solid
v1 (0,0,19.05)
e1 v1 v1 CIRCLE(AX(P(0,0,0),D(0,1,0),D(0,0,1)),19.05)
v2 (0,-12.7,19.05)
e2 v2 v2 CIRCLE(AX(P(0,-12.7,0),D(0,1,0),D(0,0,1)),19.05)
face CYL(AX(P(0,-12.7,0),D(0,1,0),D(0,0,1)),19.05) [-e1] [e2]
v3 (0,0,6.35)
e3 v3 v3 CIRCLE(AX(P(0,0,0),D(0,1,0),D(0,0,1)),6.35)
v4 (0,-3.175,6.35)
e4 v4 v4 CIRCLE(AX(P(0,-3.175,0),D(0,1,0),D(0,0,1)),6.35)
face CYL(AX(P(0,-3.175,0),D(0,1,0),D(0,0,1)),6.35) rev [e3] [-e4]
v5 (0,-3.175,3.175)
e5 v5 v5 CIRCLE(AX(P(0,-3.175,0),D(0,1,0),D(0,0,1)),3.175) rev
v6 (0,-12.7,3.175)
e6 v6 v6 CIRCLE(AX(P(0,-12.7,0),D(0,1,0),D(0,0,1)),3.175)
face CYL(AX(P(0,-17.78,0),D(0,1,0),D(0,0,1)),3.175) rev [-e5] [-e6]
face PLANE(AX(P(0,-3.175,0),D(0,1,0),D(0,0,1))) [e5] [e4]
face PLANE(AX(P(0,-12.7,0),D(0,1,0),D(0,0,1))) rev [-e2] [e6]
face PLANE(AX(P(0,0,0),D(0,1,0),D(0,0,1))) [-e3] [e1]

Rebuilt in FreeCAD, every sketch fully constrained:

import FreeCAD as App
import Part
import Sketcher

V = App.Vector
Q = App.Units.Quantity

doc = App.newDocument("Part")
body = doc.addObject("PartDesign::Body", "Body")

sketch1 = body.newObject("Sketcher::SketchObject", "Sketch")
sketch1.AttachmentSupport = (doc.getObject("XZ_Plane"), [""])
sketch1.MapMode = "FlatFace"
sketch1.addGeometry(Part.Circle(V(0, 0, 0), V(0, 0, 1), 19), False)
sketch1.addConstraint(Sketcher.Constraint("Coincident", 0, 3, -1, 1))
sketch1.addConstraint(Sketcher.Constraint("Diameter", 0, Q("1.5 in")))
pad1 = body.newObject("PartDesign::Pad", "Pad")
pad1.Profile = sketch1
pad1.Length = Q("0.5 in")

sketch2 = body.newObject("Sketcher::SketchObject", "Sketch001")
sketch2.AttachmentSupport = (doc.getObject("XZ_Plane"), [""])
sketch2.MapMode = "FlatFace"
sketch2.addGeometry(Part.Circle(V(0, 0, 0), V(0, 0, 1), 3.2), False)
sketch2.addConstraint(Sketcher.Constraint("Coincident", 0, 3, -1, 1))
sketch2.addConstraint(Sketcher.Constraint("Diameter", 0, Q("0.25 in")))
pocket1 = body.newObject("PartDesign::Pocket", "Pocket")
pocket1.Profile = sketch2
pocket1.Length = Q("0.7 in")
pocket1.Reversed = True

sketch3 = body.newObject("Sketcher::SketchObject", "Sketch002")
sketch3.AttachmentSupport = (doc.getObject("XZ_Plane"), [""])
sketch3.MapMode = "FlatFace"
sketch3.addGeometry(Part.Circle(V(0, 0, 0), V(0, 0, 1), 6), False)
sketch3.addConstraint(Sketcher.Constraint("Coincident", 0, 3, -1, 1))
sketch3.addConstraint(Sketcher.Constraint("Diameter", 0, Q("0.5 in")))
pocket2 = body.newObject("PartDesign::Pocket", "Pocket001")
pocket2.Profile = sketch3
pocket2.Length = Q("0.125 in")
pocket2.Reversed = True

doc.recompute()
